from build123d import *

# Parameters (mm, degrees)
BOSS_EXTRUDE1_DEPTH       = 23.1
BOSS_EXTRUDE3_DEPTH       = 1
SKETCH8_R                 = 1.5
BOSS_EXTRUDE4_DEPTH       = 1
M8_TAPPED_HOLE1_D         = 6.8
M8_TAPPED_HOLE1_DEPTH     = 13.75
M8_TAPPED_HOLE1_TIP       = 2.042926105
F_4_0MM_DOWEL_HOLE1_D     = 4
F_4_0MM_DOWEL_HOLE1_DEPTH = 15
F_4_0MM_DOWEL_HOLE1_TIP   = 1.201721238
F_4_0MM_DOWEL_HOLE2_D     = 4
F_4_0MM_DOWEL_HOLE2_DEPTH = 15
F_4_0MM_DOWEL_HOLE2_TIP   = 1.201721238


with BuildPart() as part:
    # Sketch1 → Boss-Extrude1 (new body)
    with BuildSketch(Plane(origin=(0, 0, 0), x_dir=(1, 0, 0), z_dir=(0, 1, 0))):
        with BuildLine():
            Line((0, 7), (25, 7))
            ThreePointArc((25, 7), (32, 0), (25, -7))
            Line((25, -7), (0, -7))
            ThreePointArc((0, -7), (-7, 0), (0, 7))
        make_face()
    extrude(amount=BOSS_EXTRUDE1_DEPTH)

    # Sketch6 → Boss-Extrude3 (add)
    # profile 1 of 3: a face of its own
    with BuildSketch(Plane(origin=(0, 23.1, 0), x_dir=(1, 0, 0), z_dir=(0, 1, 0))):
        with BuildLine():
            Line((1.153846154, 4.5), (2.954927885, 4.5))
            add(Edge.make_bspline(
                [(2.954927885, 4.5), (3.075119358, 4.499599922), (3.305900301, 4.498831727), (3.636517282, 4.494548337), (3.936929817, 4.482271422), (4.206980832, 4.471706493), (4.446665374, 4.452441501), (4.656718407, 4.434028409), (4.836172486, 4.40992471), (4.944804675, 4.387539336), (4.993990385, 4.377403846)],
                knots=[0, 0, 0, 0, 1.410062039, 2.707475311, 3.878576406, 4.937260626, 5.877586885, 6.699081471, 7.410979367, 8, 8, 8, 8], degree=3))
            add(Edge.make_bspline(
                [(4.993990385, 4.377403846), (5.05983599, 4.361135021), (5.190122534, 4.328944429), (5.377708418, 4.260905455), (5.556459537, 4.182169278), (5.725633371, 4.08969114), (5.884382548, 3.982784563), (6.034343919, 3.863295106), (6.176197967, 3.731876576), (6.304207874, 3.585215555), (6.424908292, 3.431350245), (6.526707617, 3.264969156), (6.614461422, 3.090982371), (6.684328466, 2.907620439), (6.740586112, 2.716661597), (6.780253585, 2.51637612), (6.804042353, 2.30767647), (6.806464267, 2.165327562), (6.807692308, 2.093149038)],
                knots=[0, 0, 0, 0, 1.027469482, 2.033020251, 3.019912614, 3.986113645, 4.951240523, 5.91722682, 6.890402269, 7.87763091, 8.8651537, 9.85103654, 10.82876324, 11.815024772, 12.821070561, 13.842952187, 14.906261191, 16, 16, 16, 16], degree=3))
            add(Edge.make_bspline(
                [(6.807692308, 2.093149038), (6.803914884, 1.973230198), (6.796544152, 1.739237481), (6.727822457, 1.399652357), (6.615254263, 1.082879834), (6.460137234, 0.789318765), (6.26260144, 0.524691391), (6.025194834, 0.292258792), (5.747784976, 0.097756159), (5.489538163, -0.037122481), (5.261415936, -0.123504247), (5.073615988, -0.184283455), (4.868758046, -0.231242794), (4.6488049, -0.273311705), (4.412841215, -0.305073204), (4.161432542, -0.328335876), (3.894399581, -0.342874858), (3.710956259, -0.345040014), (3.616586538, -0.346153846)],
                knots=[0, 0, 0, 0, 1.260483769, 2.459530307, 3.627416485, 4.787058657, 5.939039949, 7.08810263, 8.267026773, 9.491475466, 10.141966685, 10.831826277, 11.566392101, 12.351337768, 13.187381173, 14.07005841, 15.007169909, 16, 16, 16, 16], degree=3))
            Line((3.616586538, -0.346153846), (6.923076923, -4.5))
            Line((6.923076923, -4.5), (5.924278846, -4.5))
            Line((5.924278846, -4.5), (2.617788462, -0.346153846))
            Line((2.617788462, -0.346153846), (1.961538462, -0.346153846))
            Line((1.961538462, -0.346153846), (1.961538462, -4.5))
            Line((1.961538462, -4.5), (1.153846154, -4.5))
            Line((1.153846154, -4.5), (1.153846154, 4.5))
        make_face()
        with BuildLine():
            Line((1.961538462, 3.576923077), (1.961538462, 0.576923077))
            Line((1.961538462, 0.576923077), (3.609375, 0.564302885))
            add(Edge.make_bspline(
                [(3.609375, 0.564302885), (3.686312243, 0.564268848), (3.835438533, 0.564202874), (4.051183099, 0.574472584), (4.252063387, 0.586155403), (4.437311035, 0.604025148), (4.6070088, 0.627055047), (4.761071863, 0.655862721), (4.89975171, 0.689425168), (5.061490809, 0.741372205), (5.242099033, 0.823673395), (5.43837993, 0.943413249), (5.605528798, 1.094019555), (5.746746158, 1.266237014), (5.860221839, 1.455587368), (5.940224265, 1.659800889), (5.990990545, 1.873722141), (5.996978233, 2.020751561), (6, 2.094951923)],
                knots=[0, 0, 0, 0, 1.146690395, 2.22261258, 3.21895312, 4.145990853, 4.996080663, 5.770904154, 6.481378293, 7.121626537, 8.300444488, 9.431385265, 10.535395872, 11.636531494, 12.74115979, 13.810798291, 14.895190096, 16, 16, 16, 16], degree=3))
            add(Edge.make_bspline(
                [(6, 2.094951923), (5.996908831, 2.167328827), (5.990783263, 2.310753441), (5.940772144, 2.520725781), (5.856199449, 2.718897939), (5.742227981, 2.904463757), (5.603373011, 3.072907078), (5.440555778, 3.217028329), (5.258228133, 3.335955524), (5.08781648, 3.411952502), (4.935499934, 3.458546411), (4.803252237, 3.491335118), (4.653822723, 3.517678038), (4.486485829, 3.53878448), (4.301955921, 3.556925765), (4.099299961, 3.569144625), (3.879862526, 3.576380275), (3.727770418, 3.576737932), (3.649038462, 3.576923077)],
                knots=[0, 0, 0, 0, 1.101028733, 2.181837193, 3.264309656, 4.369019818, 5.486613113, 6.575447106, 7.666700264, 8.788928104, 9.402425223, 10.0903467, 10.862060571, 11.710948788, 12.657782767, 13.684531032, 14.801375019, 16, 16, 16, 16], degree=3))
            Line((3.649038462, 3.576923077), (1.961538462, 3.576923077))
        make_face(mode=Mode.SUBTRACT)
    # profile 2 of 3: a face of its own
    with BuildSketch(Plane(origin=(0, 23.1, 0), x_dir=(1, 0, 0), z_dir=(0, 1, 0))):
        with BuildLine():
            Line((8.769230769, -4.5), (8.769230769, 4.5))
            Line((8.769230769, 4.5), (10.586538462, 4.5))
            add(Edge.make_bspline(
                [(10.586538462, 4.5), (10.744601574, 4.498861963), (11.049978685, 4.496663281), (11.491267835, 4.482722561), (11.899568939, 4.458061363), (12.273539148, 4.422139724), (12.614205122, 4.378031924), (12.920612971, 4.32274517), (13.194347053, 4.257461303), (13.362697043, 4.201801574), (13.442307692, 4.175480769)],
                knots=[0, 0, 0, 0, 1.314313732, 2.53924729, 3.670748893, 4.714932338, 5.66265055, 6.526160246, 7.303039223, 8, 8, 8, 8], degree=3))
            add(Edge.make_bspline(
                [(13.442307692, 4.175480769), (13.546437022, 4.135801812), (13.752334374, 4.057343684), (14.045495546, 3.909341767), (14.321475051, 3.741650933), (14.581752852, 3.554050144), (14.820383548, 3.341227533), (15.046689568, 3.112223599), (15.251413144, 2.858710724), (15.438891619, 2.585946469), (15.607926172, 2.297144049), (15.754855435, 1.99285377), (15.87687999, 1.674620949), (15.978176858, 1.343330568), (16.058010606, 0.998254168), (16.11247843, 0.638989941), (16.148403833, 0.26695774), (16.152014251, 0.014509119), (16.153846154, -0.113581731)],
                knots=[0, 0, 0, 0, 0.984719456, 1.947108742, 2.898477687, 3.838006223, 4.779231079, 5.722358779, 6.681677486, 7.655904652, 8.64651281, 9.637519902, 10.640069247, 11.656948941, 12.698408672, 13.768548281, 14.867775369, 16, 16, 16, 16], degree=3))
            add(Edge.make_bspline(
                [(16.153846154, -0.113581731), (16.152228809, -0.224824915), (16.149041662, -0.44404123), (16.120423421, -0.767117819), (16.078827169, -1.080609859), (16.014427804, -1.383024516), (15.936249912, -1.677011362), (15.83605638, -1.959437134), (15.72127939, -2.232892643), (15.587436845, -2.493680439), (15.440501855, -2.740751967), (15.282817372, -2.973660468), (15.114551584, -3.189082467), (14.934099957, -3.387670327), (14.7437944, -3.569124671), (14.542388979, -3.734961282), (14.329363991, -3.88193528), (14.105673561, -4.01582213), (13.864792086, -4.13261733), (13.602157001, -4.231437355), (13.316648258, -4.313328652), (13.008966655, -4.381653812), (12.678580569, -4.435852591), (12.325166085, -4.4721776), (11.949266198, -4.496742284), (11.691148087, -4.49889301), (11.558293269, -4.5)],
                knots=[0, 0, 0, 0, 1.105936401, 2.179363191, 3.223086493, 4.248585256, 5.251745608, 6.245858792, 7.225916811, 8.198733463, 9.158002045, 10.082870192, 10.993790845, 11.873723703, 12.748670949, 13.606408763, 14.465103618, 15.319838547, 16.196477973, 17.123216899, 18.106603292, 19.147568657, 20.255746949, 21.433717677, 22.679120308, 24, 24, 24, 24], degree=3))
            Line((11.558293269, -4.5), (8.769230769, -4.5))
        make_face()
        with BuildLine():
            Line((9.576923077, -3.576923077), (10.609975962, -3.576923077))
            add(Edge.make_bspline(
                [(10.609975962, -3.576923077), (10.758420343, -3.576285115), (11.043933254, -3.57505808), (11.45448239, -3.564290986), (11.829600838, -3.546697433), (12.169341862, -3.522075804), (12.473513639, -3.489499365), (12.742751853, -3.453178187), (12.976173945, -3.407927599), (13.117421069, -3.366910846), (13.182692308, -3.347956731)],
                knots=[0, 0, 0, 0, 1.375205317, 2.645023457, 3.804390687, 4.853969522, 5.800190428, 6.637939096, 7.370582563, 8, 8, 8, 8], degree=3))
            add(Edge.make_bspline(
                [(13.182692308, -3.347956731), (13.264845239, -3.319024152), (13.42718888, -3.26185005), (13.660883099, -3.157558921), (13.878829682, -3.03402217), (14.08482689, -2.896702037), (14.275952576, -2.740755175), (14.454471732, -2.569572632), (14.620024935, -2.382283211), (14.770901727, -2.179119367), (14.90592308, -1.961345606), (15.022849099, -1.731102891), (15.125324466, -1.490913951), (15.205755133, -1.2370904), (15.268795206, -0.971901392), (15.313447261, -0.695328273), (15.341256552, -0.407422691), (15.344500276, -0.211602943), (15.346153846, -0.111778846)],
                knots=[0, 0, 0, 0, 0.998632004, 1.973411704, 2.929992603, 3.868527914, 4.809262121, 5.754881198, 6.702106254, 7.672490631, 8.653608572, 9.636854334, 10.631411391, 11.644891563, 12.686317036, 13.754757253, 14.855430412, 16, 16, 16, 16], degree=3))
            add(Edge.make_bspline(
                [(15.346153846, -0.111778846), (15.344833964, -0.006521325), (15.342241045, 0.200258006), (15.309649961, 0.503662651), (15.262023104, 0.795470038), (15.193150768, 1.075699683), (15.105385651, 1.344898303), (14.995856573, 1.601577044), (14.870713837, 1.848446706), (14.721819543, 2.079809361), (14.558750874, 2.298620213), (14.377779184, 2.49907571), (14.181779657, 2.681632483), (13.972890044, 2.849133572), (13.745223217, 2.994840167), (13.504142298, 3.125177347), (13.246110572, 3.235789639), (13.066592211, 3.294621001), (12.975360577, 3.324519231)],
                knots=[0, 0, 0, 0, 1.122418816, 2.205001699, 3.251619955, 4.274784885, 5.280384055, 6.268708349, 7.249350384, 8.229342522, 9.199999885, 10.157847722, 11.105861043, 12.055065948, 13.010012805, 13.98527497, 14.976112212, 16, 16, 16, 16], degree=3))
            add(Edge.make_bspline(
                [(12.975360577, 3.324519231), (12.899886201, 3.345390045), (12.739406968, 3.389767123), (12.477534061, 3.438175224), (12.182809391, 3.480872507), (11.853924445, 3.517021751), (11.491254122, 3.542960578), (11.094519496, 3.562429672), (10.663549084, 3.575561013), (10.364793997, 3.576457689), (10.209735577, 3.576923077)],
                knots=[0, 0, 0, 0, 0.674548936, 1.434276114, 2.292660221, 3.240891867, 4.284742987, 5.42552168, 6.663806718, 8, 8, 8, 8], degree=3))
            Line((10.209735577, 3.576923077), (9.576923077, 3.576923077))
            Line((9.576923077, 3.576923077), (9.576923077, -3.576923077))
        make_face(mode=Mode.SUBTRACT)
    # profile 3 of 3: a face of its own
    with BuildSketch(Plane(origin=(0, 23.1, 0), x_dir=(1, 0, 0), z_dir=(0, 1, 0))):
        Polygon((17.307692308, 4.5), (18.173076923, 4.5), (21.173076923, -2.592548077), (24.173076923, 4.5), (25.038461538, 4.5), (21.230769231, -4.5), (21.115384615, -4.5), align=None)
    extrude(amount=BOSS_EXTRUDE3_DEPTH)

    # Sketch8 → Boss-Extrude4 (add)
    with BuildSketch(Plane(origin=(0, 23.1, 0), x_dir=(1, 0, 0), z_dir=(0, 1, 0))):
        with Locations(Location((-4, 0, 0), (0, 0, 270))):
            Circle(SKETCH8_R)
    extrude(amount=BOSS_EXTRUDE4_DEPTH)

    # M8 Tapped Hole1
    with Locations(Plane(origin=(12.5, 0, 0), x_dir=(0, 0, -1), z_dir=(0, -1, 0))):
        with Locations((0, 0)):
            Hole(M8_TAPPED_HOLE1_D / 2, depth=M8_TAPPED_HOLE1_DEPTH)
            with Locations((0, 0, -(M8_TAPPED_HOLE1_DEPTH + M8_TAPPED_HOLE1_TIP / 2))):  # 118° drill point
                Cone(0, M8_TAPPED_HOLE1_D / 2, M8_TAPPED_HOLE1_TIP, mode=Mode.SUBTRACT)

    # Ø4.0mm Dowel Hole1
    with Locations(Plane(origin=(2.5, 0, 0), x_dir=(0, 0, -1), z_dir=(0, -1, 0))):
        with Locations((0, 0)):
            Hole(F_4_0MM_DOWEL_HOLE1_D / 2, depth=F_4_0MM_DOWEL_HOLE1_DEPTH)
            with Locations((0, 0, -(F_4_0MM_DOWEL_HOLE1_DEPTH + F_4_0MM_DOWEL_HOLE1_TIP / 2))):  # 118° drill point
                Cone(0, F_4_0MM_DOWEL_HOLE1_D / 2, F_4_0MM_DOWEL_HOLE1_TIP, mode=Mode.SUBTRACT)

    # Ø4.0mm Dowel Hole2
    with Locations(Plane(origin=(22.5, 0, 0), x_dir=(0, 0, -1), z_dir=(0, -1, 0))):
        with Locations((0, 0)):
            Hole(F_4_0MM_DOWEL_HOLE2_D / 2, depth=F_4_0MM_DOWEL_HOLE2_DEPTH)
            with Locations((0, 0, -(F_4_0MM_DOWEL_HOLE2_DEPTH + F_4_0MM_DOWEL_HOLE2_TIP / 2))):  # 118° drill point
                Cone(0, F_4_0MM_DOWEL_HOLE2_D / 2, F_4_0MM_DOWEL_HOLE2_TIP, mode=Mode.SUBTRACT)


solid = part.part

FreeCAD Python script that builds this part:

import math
import FreeCAD as App
import Part
import Sketcher

V = App.Vector

doc = App.newDocument("Part")
params = doc.addObject("Spreadsheet::Sheet", "Params")
for row, (alias, value) in enumerate([
    ("sketch1_radius", "7 mm"),
    ("sketch1_width", "25 mm"),
    ("pad1_length", "23.1 mm"),
    ("sketch2_height", "3 mm"),
    ("pad2_length", "1 mm"),
    ("sketch3_diameter", "3 mm"),
    ("pad3_length", "1 mm"),
    ("sketch4_diameter", "6.8 mm"),
    ("hole_diameter", "6.8 mm"),
    ("hole_depth", "13.75 mm"),
    ("sketch5_diameter", "4 mm"),
    ("hole2_diameter", "4 mm"),
    ("hole2_depth", "15 mm"),
    ("sketch6_diameter", "4 mm"),
    ("hole3_diameter", "4 mm"),
    ("hole3_depth", "15 mm"),
], start=1):
    params.set(f"A{row}", alias)
    params.set(f"B{row}", "=" + value)
    params.setAlias(f"B{row}", alias)

body = doc.addObject("PartDesign::Body", "Body")

# Sketch on XZ plane
sketch1 = body.newObject("Sketcher::SketchObject", "Sketch")
sketch1.AttachmentSupport = (doc.getObject("XZ_Plane"), [""])
sketch1.MapMode = "FlatFace"
sketch1.addGeometry(Part.LineSegment(V(25, -7, 0), V(0, -7, 0)), False)
sketch1.addGeometry(Part.ArcOfCircle(Part.Circle(V(0, 0, 0), V(0, 0, 1), 7), math.radians(90), math.radians(270)), False)
sketch1.addGeometry(Part.LineSegment(V(0, 7, 0), V(25, 7, 0)), False)
sketch1.addGeometry(Part.ArcOfCircle(Part.Circle(V(25, 0, 0), V(0, 0, 1), 7), math.radians(-90), math.radians(90)), False)
sketch1.addConstraint(Sketcher.Constraint("Tangent", 0, 2, 1, 2))
sketch1.addConstraint(Sketcher.Constraint("Tangent", 1, 1, 2, 1))
sketch1.addConstraint(Sketcher.Constraint("Tangent", 2, 2, 3, 2))
sketch1.addConstraint(Sketcher.Constraint("Tangent", 3, 1, 0, 1))
sketch1.addConstraint(Sketcher.Constraint("Horizontal", 0))
sketch1.addConstraint(Sketcher.Constraint("Horizontal", 2))
sketch1.addConstraint(Sketcher.Constraint("Coincident", 1, 3, -1, 1))
sketch1.addConstraint(Sketcher.Constraint("Radius", 1, 7.0))
sketch1.addConstraint(Sketcher.Constraint("DistanceX", 0, 2, 0, 1, 25.0))
sketch1.setExpression("Constraints[7]", "Params.sketch1_radius")
sketch1.setExpression("Constraints[8]", "Params.sketch1_width")
pad1 = body.newObject("PartDesign::Pad", "Pad")
pad1.Profile = sketch1
pad1.setExpression("Length", "Params.pad1_length")
pad1.Reversed = True

# Sketch on XZ plane
sketch2 = body.newObject("Sketcher::SketchObject", "Sketch001")
sketch2.AttachmentSupport = (doc.getObject("XZ_Plane"), [""])
sketch2.MapMode = "FlatFace"
sketch2.AttachmentOffset = App.Placement(V(0, 0, -23.1), App.Rotation())
sketch2.addGeometry(Part.LineSegment(V(2.954928, -4.5, 0), V(1.153846, -4.5, 0)), False)
sketch2.addGeometry(Part.LineSegment(V(1.153846, -4.5, 0), V(1.153846, 4.5, 0)), False)
sketch2.addGeometry(Part.LineSegment(V(1.153846, 4.5, 0), V(1.961538, 4.5, 0)), False)
sketch2.addGeometry(Part.LineSegment(V(1.961538, 4.5, 0), V(1.961538, 0.346154, 0)), False)
sketch2.addGeometry(Part.LineSegment(V(1.961538, 0.346154, 0), V(2.617788, 0.346154, 0)), False)
sketch2.addGeometry(Part.LineSegment(V(2.617788, 0.346154, 0), V(5.924279, 4.5, 0)), False)
sketch2.addGeometry(Part.LineSegment(V(5.924279, 4.5, 0), V(6.923077, 4.5, 0)), False)
sketch2.addGeometry(Part.LineSegment(V(6.923077, 4.5, 0), V(3.616587, 0.346154, 0)), False)
sketch2.addGeometry(Part.BSplineCurve([V(6.807692, -2.093149, 0), V(6.803915, -1.97323, 0), V(6.796544, -1.739237, 0), V(6.727822, -1.399652, 0), V(6.615254, -1.08288, 0), V(6.460137, -0.789319, 0), V(6.262601, -0.524691, 0), V(6.025195, -0.292259, 0), V(5.747785, -0.097756, 0), V(5.489538, 0.037122, 0), V(5.261416, 0.123504, 0), V(5.073616, 0.184283, 0), V(4.868758, 0.231243, 0), V(4.648805, 0.273312, 0), V(4.412841, 0.305073, 0), V(4.161433, 0.328336, 0), V(3.8944, 0.342875, 0), V(3.710956, 0.34504, 0), V(3.616587, 0.346154, 0)], [4, 1, 1, 1, 1, 1, 1, 1, 1, 1, 1, 1, 1, 1, 1, 1, 4], [0, 1.260483769, 2.459530307, 3.627416485, 4.787058657, 5.939039949, 7.08810263, 8.267026773, 9.491475466, 10.141966685, 10.831826277, 11.566392101, 12.351337768, 13.187381173, 14.07005841, 15.007169909, 16], False, 3, [1, 1, 1, 1, 1, 1, 1, 1, 1, 1, 1, 1, 1, 1, 1, 1, 1, 1, 1], False), False)
sketch2.addGeometry(Part.BSplineCurve([V(4.99399, -4.377404, 0), V(5.059836, -4.361135, 0), V(5.190123, -4.328944, 0), V(5.377708, -4.260905, 0), V(5.55646, -4.182169, 0), V(5.725633, -4.089691, 0), V(5.884383, -3.982785, 0), V(6.034344, -3.863295, 0), V(6.176198, -3.731877, 0), V(6.304208, -3.585216, 0), V(6.424908, -3.43135, 0), V(6.526708, -3.264969, 0), V(6.614461, -3.090982, 0), V(6.684328, -2.90762, 0), V(6.740586, -2.716662, 0), V(6.780254, -2.516376, 0), V(6.804042, -2.307676, 0), V(6.806464, -2.165328, 0), V(6.807692, -2.093149, 0)], [4, 1, 1, 1, 1, 1, 1, 1, 1, 1, 1, 1, 1, 1, 1, 1, 4], [0, 1.027469482, 2.033020251, 3.019912614, 3.986113645, 4.951240523, 5.91722682, 6.890402269, 7.87763091, 8.8651537, 9.85103654, 10.82876324, 11.815024772, 12.821070561, 13.842952187, 14.906261191, 16], False, 3, [1, 1, 1, 1, 1, 1, 1, 1, 1, 1, 1, 1, 1, 1, 1, 1, 1, 1, 1], False), False)
sketch2.addGeometry(Part.BSplineCurve([V(2.954928, -4.5, 0), V(3.075119, -4.4996, 0), V(3.3059, -4.498832, 0), V(3.636517, -4.494548, 0), V(3.93693, -4.482271, 0), V(4.206981, -4.471706, 0), V(4.446665, -4.452442, 0), V(4.656718, -4.434028, 0), V(4.836172, -4.409925, 0), V(4.944805, -4.387539, 0), V(4.99399, -4.377404, 0)], [4, 1, 1, 1, 1, 1, 1, 1, 4], [0, 1.410062039, 2.707475311, 3.878576406, 4.937260626, 5.877586885, 6.699081471, 7.410979367, 8], False, 3, [1, 1, 1, 1, 1, 1, 1, 1, 1, 1, 1], False), False)
sketch2.addGeometry(Part.LineSegment(V(1.961538, -3.576923, 0), V(3.649038, -3.576923, 0)), False)
sketch2.addGeometry(Part.BSplineCurve([V(6, -2.094952, 0), V(5.996909, -2.167329, 0), V(5.990783, -2.310753, 0), V(5.940772, -2.520726, 0), V(5.856199, -2.718898, 0), V(5.742228, -2.904464, 0), V(5.603373, -3.072907, 0), V(5.440556, -3.217028, 0), V(5.258228, -3.335956, 0), V(5.087816, -3.411953, 0), V(4.9355, -3.458546, 0), V(4.803252, -3.491335, 0), V(4.653823, -3.517678, 0), V(4.486486, -3.538784, 0), V(4.301956, -3.556926, 0), V(4.0993, -3.569145, 0), V(3.879863, -3.57638, 0), V(3.72777, -3.576738, 0), V(3.649038, -3.576923, 0)], [4, 1, 1, 1, 1, 1, 1, 1, 1, 1, 1, 1, 1, 1, 1, 1, 4], [0, 1.101028733, 2.181837193, 3.264309656, 4.369019818, 5.486613113, 6.575447106, 7.666700264, 8.788928104, 9.402425223, 10.0903467, 10.862060571, 11.710948788, 12.657782767, 13.684531032, 14.801375019, 16], False, 3, [1, 1, 1, 1, 1, 1, 1, 1, 1, 1, 1, 1, 1, 1, 1, 1, 1, 1, 1], False), False)
sketch2.addGeometry(Part.BSplineCurve([V(3.609375, -0.564303, 0), V(3.686312, -0.564269, 0), V(3.835439, -0.564203, 0), V(4.051183, -0.574473, 0), V(4.252063, -0.586155, 0), V(4.437311, -0.604025, 0), V(4.607009, -0.627055, 0), V(4.761072, -0.655863, 0), V(4.899752, -0.689425, 0), V(5.061491, -0.741372, 0), V(5.242099, -0.823673, 0), V(5.43838, -0.943413, 0), V(5.605529, -1.09402, 0), V(5.746746, -1.266237, 0), V(5.860222, -1.455587, 0), V(5.940224, -1.659801, 0), V(5.990991, -1.873722, 0), V(5.996978, -2.020752, 0), V(6, -2.094952, 0)], [4, 1, 1, 1, 1, 1, 1, 1, 1, 1, 1, 1, 1, 1, 1, 1, 4], [0, 1.146690395, 2.22261258, 3.21895312, 4.145990853, 4.996080663, 5.770904154, 6.481378293, 7.121626537, 8.300444488, 9.431385265, 10.535395872, 11.636531494, 12.74115979, 13.810798291, 14.895190096, 16], False, 3, [1, 1, 1, 1, 1, 1, 1, 1, 1, 1, 1, 1, 1, 1, 1, 1, 1, 1, 1], False), False)
sketch2.addGeometry(Part.LineSegment(V(3.609375, -0.564303, 0), V(1.961538, -0.576923, 0)), False)
sketch2.addGeometry(Part.LineSegment(V(1.961538, -0.576923, 0), V(1.961538, -3.576923, 0)), False)
sketch2.addGeometry(Part.LineSegment(V(8.769231, -4.5, 0), V(8.769231, 4.5, 0)), False)
sketch2.addGeometry(Part.LineSegment(V(8.769231, 4.5, 0), V(11.558293, 4.5, 0)), False)
sketch2.addGeometry(Part.BSplineCurve([V(16.153846, 0.113582, 0), V(16.152229, 0.224825, 0), V(16.149042, 0.444041, 0), V(16.120423, 0.767118, 0), V(16.078827, 1.08061, 0), V(16.014428, 1.383025, 0), V(15.93625, 1.677011, 0), V(15.836056, 1.959437, 0), V(15.721279, 2.232893, 0), V(15.587437, 2.49368, 0), V(15.440502, 2.740752, 0), V(15.282817, 2.97366, 0), V(15.114552, 3.189082, 0), V(14.9341, 3.38767, 0), V(14.743794, 3.569125, 0), V(14.542389, 3.734961, 0), V(14.329364, 3.881935, 0), V(14.105674, 4.015822, 0), V(13.864792, 4.132617, 0), V(13.602157, 4.231437, 0), V(13.316648, 4.313329, 0), V(13.008967, 4.381654, 0), V(12.678581, 4.435853, 0), V(12.325166, 4.472178, 0), V(11.949266, 4.496742, 0), V(11.691148, 4.498893, 0), V(11.558293, 4.5, 0)], [4, 1, 1, 1, 1, 1, 1, 1, 1, 1, 1, 1, 1, 1, 1, 1, 1, 1, 1, 1, 1, 1, 1, 1, 4], [0, 1.105936401, 2.179363191, 3.223086493, 4.248585256, 5.251745608, 6.245858792, 7.225916811, 8.198733463, 9.158002045, 10.082870192, 10.993790845, 11.873723703, 12.748670949, 13.606408763, 14.465103618, 15.319838547, 16.196477973, 17.123216899, 18.106603292, 19.147568657, 20.255746949, 21.433717677, 22.679120308, 24], False, 3, [1, 1, 1, 1, 1, 1, 1, 1, 1, 1, 1, 1, 1, 1, 1, 1, 1, 1, 1, 1, 1, 1, 1, 1, 1, 1, 1], False), False)
sketch2.addGeometry(Part.BSplineCurve([V(13.442308, -4.175481, 0), V(13.546437, -4.135802, 0), V(13.752334, -4.057344, 0), V(14.045496, -3.909342, 0), V(14.321475, -3.741651, 0), V(14.581753, -3.55405, 0), V(14.820384, -3.341228, 0), V(15.04669, -3.112224, 0), V(15.251413, -2.858711, 0), V(15.438892, -2.585946, 0), V(15.607926, -2.297144, 0), V(15.754855, -1.992854, 0), V(15.87688, -1.674621, 0), V(15.978177, -1.343331, 0), V(16.058011, -0.998254, 0), V(16.112478, -0.63899, 0), V(16.148404, -0.266958, 0), V(16.152014, -0.014509, 0), V(16.153846, 0.113582, 0)], [4, 1, 1, 1, 1, 1, 1, 1, 1, 1, 1, 1, 1, 1, 1, 1, 4], [0, 0.984719456, 1.947108742, 2.898477687, 3.838006223, 4.779231079, 5.722358779, 6.681677486, 7.655904652, 8.64651281, 9.637519902, 10.640069247, 11.656948941, 12.698408672, 13.768548281, 14.867775369, 16], False, 3, [1, 1, 1, 1, 1, 1, 1, 1, 1, 1, 1, 1, 1, 1, 1, 1, 1, 1, 1], False), False)
sketch2.addGeometry(Part.BSplineCurve([V(10.586538, -4.5, 0), V(10.744602, -4.498862, 0), V(11.049979, -4.496663, 0), V(11.491268, -4.482723, 0), V(11.899569, -4.458061, 0), V(12.273539, -4.42214, 0), V(12.614205, -4.378032, 0), V(12.920613, -4.322745, 0), V(13.194347, -4.257461, 0), V(13.362697, -4.201802, 0), V(13.442308, -4.175481, 0)], [4, 1, 1, 1, 1, 1, 1, 1, 4], [0, 1.314313732, 2.53924729, 3.670748893, 4.714932338, 5.66265055, 6.526160246, 7.303039223, 8], False, 3, [1, 1, 1, 1, 1, 1, 1, 1, 1, 1, 1], False), False)
sketch2.addGeometry(Part.LineSegment(V(10.586538, -4.5, 0), V(8.769231, -4.5, 0)), False)
sketch2.addGeometry(Part.LineSegment(V(9.576923, 3.576923, 0), V(9.576923, -3.576923, 0)), False)
sketch2.addGeometry(Part.LineSegment(V(9.576923, -3.576923, 0), V(10.209736, -3.576923, 0)), False)
sketch2.addGeometry(Part.BSplineCurve([V(12.975361, -3.324519, 0), V(12.899886, -3.34539, 0), V(12.739407, -3.389767, 0), V(12.477534, -3.438175, 0), V(12.182809, -3.480873, 0), V(11.853924, -3.517022, 0), V(11.491254, -3.542961, 0), V(11.094519, -3.56243, 0), V(10.663549, -3.575561, 0), V(10.364794, -3.576458, 0), V(10.209736, -3.576923, 0)], [4, 1, 1, 1, 1, 1, 1, 1, 4], [0, 0.674548936, 1.434276114, 2.292660221, 3.240891867, 4.284742987, 5.42552168, 6.663806718, 8], False, 3, [1, 1, 1, 1, 1, 1, 1, 1, 1, 1, 1], False), False)
sketch2.addGeometry(Part.BSplineCurve([V(15.346154, 0.111779, 0), V(15.344834, 0.006521, 0), V(15.342241, -0.200258, 0), V(15.30965, -0.503663, 0), V(15.262023, -0.79547, 0), V(15.193151, -1.0757, 0), V(15.105386, -1.344898, 0), V(14.995857, -1.601577, 0), V(14.870714, -1.848447, 0), V(14.72182, -2.079809, 0), V(14.558751, -2.29862, 0), V(14.377779, -2.499076, 0), V(14.18178, -2.681632, 0), V(13.97289, -2.849134, 0), V(13.745223, -2.99484, 0), V(13.504142, -3.125177, 0), V(13.246111, -3.23579, 0), V(13.066592, -3.294621, 0), V(12.975361, -3.324519, 0)], [4, 1, 1, 1, 1, 1, 1, 1, 1, 1, 1, 1, 1, 1, 1, 1, 4], [0, 1.122418816, 2.205001699, 3.251619955, 4.274784885, 5.280384055, 6.268708349, 7.249350384, 8.229342522, 9.199999885, 10.157847722, 11.105861043, 12.055065948, 13.010012805, 13.98527497, 14.976112212, 16], False, 3, [1, 1, 1, 1, 1, 1, 1, 1, 1, 1, 1, 1, 1, 1, 1, 1, 1, 1, 1], False), False)
sketch2.addGeometry(Part.BSplineCurve([V(13.182692, 3.347957, 0), V(13.264845, 3.319024, 0), V(13.427189, 3.26185, 0), V(13.660883, 3.157559, 0), V(13.87883, 3.034022, 0), V(14.084827, 2.896702, 0), V(14.275953, 2.740755, 0), V(14.454472, 2.569573, 0), V(14.620025, 2.382283, 0), V(14.770902, 2.179119, 0), V(14.905923, 1.961346, 0), V(15.022849, 1.731103, 0), V(15.125324, 1.490914, 0), V(15.205755, 1.23709, 0), V(15.268795, 0.971901, 0), V(15.313447, 0.695328, 0), V(15.341257, 0.407423, 0), V(15.3445, 0.211603, 0), V(15.346154, 0.111779, 0)], [4, 1, 1, 1, 1, 1, 1, 1, 1, 1, 1, 1, 1, 1, 1, 1, 4], [0, 0.998632004, 1.973411704, 2.929992603, 3.868527914, 4.809262121, 5.754881198, 6.702106254, 7.672490631, 8.653608572, 9.636854334, 10.631411391, 11.644891563, 12.686317036, 13.754757253, 14.855430412, 16], False, 3, [1, 1, 1, 1, 1, 1, 1, 1, 1, 1, 1, 1, 1, 1, 1, 1, 1, 1, 1], False), False)
sketch2.addGeometry(Part.BSplineCurve([V(10.609976, 3.576923, 0), V(10.75842, 3.576285, 0), V(11.043933, 3.575058, 0), V(11.454482, 3.564291, 0), V(11.829601, 3.546697, 0), V(12.169342, 3.522076, 0), V(12.473514, 3.489499, 0), V(12.742752, 3.453178, 0), V(12.976174, 3.407928, 0), V(13.117421, 3.366911, 0), V(13.182692, 3.347957, 0)], [4, 1, 1, 1, 1, 1, 1, 1, 4], [0, 1.375205317, 2.645023457, 3.804390687, 4.853969522, 5.800190428, 6.637939096, 7.370582563, 8], False, 3, [1, 1, 1, 1, 1, 1, 1, 1, 1, 1, 1], False), False)
sketch2.addGeometry(Part.LineSegment(V(10.609976, 3.576923, 0), V(9.576923, 3.576923, 0)), False)
sketch2.addGeometry(Part.LineSegment(V(18.173077, -4.5, 0), V(17.307692, -4.5, 0)), False)
sketch2.addGeometry(Part.LineSegment(V(17.307692, -4.5, 0), V(21.115385, 4.5, 0)), False)
sketch2.addGeometry(Part.LineSegment(V(21.115385, 4.5, 0), V(21.230769, 4.5, 0)), False)
sketch2.addGeometry(Part.LineSegment(V(21.230769, 4.5, 0), V(25.038462, -4.5, 0)), False)
sketch2.addGeometry(Part.LineSegment(V(25.038462, -4.5, 0), V(24.173077, -4.5, 0)), False)
sketch2.addGeometry(Part.LineSegment(V(24.173077, -4.5, 0), V(21.173077, 2.592548, 0)), False)
sketch2.addGeometry(Part.LineSegment(V(21.173077, 2.592548, 0), V(18.173077, -4.5, 0)), False)
sketch2.addConstraint(Sketcher.Constraint("Block", 8))
sketch2.addConstraint(Sketcher.Constraint("Block", 9))
sketch2.addConstraint(Sketcher.Constraint("Block", 10))
sketch2.addConstraint(Sketcher.Constraint("Block", 12))
sketch2.addConstraint(Sketcher.Constraint("Block", 13))
sketch2.addConstraint(Sketcher.Constraint("Block", 18))
sketch2.addConstraint(Sketcher.Constraint("Block", 19))
sketch2.addConstraint(Sketcher.Constraint("Block", 20))
sketch2.addConstraint(Sketcher.Constraint("Block", 24))
sketch2.addConstraint(Sketcher.Constraint("Block", 25))
sketch2.addConstraint(Sketcher.Constraint("Block", 26))
sketch2.addConstraint(Sketcher.Constraint("Block", 27))
sketch2.addConstraint(Sketcher.Constraint("Coincident", 0, 2, 1, 1))
sketch2.addConstraint(Sketcher.Constraint("Coincident", 1, 2, 2, 1))
sketch2.addConstraint(Sketcher.Constraint("Coincident", 2, 2, 3, 1))
sketch2.addConstraint(Sketcher.Constraint("Coincident", 3, 2, 4, 1))
sketch2.addConstraint(Sketcher.Constraint("Coincident", 4, 2, 5, 1))
sketch2.addConstraint(Sketcher.Constraint("Coincident", 5, 2, 6, 1))
sketch2.addConstraint(Sketcher.Constraint("Coincident", 6, 2, 7, 1))
sketch2.addConstraint(Sketcher.Constraint("Coincident", 7, 2, 8, 2))
sketch2.addConstraint(Sketcher.Constraint("Coincident", 10, 1, 0, 1))
sketch2.addConstraint(Sketcher.Constraint("Coincident", 11, 2, 12, 2))
sketch2.addConstraint(Sketcher.Constraint("Coincident", 13, 1, 14, 1))
sketch2.addConstraint(Sketcher.Constraint("Coincident", 14, 2, 15, 1))
sketch2.addConstraint(Sketcher.Constraint("Coincident", 15, 2, 11, 1))
sketch2.addConstraint(Sketcher.Constraint("Coincident", 16, 2, 17, 1))
sketch2.addConstraint(Sketcher.Constraint("Coincident", 17, 2, 18, 2))
sketch2.addConstraint(Sketcher.Constraint("Coincident", 20, 1, 21, 1))
sketch2.addConstraint(Sketcher.Constraint("Coincident", 21, 2, 16, 1))
sketch2.addConstraint(Sketcher.Constraint("Coincident", 22, 2, 23, 1))
sketch2.addConstraint(Sketcher.Constraint("Coincident", 23, 2, 24, 2))
sketch2.addConstraint(Sketcher.Constraint("Coincident", 27, 1, 28, 1))
sketch2.addConstraint(Sketcher.Constraint("Coincident", 28, 2, 22, 1))
sketch2.addConstraint(Sketcher.Constraint("Coincident", 29, 2, 30, 1))
sketch2.addConstraint(Sketcher.Constraint("Coincident", 30, 2, 31, 1))
sketch2.addConstraint(Sketcher.Constraint("Coincident", 31, 2, 32, 1))
sketch2.addConstraint(Sketcher.Constraint("Coincident", 32, 2, 33, 1))
sketch2.addConstraint(Sketcher.Constraint("Coincident", 33, 2, 34, 1))
sketch2.addConstraint(Sketcher.Constraint("Coincident", 34, 2, 35, 1))
sketch2.addConstraint(Sketcher.Constraint("Coincident", 35, 2, 29, 1))
sketch2.addConstraint(Sketcher.Constraint("Horizontal", 0))
sketch2.addConstraint(Sketcher.Constraint("Vertical", 1))
sketch2.addConstraint(Sketcher.Constraint("Horizontal", 2))
sketch2.addConstraint(Sketcher.Constraint("Vertical", 3))
sketch2.addConstraint(Sketcher.Constraint("Horizontal", 4))
sketch2.addConstraint(Sketcher.Constraint("Horizontal", 6))
sketch2.addConstraint(Sketcher.Constraint("Horizontal", 11))
sketch2.addConstraint(Sketcher.Constraint("Vertical", 15))
sketch2.addConstraint(Sketcher.Constraint("Vertical", 16))
sketch2.addConstraint(Sketcher.Constraint("Horizontal", 17))
sketch2.addConstraint(Sketcher.Constraint("Horizontal", 21))
sketch2.addConstraint(Sketcher.Constraint("Vertical", 22))
sketch2.addConstraint(Sketcher.Constraint("Horizontal", 23))
sketch2.addConstraint(Sketcher.Constraint("Horizontal", 28))
sketch2.addConstraint(Sketcher.Constraint("Horizontal", 29))
sketch2.addConstraint(Sketcher.Constraint("Horizontal", 31))
sketch2.addConstraint(Sketcher.Constraint("Horizontal", 33))
sketch2.addConstraint(Sketcher.Constraint("Parallel", 5, 7))
sketch2.addConstraint(Sketcher.Constraint("Horizontal", 2, 2, 5, 2))
sketch2.addConstraint(Sketcher.Constraint("Horizontal", 4, 2, 7, 2))
sketch2.addConstraint(Sketcher.Constraint("Horizontal", 6, 2, 16, 2))
sketch2.addConstraint(Sketcher.Constraint("Horizontal", 21, 2, 29, 2))
sketch2.addConstraint(Sketcher.Constraint("Horizontal", 17, 2, 30, 2))
sketch2.addConstraint(Sketcher.Constraint("Horizontal", 29, 2, 32, 2))
sketch2.addConstraint(Sketcher.Constraint("Vertical", 3, 2, 14, 2))
sketch2.addConstraint(Sketcher.Constraint("Equal", 29, 33))
sketch2.addConstraint(Sketcher.Constraint("Equal", 30, 32))
sketch2.addConstraint(Sketcher.Constraint("Equal", 34, 35))
sketch2.addConstraint(Sketcher.Constraint("DistanceY", 15, 2, 15, 1, 3.0))
sketch2.addConstraint(Sketcher.Constraint("DistanceX", 34, 2, 33, 2, 3.0))
sketch2.addConstraint(Sketcher.Constraint("DistanceX", 6, 1, 6, 2, 0.998798))
sketch2.addConstraint(Sketcher.Constraint("DistanceX", 11, 1, 11, 2, 1.6875))
sketch2.addConstraint(Sketcher.Constraint("DistanceX", 0, 2, 0, 1, 1.801082))
sketch2.addConstraint(Sketcher.Constraint("DistanceX", 17, 2, 29, 2, 5.749399))
sketch2.addConstraint(Sketcher.Constraint("DistanceX", 17, 1, 17, 2, 2.789062))
sketch2.addConstraint(Sketcher.Constraint("DistanceX", 23, 1, 23, 2, 0.632812))
sketch2.addConstraint(Sketcher.Constraint("DistanceX", 29, 2, 29, 1, 0.865385))
sketch2.addConstraint(Sketcher.Constraint("DistanceX", 31, 1, 31, 2, 0.115385))
sketch2.addConstraint(Sketcher.Constraint("DistanceX", -1, 1, 5, 2, 5.924279))
sketch2.addConstraint(Sketcher.Constraint("DistanceY", -1, 1, 34, 2, 2.592548))
sketch2.setExpression("Constraints[68]", "Params.sketch2_height")
pad2 = body.newObject("PartDesign::Pad", "Pad001")
pad2.Profile = sketch2
pad2.setExpression("Length", "Params.pad2_length")
pad2.Reversed = True

# Sketch on XZ plane
sketch3 = body.newObject("Sketcher::SketchObject", "Sketch002")
sketch3.AttachmentSupport = (doc.getObject("XZ_Plane"), [""])
sketch3.MapMode = "FlatFace"
sketch3.AttachmentOffset = App.Placement(V(0, 0, -23.1), App.Rotation())
sketch3.addGeometry(Part.Circle(V(-4, 0, 0), V(0, 0, 1), 1.5), False)
sketch3.addConstraint(Sketcher.Constraint("PointOnObject", 0, 3, -1))
sketch3.addConstraint(Sketcher.Constraint("Diameter", 0, 3.0))
sketch3.addConstraint(Sketcher.Constraint("DistanceX", 0, 3, -1, 1, 4.0))
sketch3.setExpression("Constraints[1]", "Params.sketch3_diameter")
pad3 = body.newObject("PartDesign::Pad", "Pad002")
pad3.Profile = sketch3
pad3.setExpression("Length", "Params.pad3_length")
pad3.Reversed = True

# Sketch on XZ plane
sketch4 = body.newObject("Sketcher::SketchObject", "Sketch003")
sketch4.AttachmentSupport = (doc.getObject("XZ_Plane"), [""])
sketch4.MapMode = "FlatFace"
sketch4.addGeometry(Part.Circle(V(12.5, 0, 0), V(0, 0, 1), 3.4), False)
sketch4.addConstraint(Sketcher.Constraint("PointOnObject", 0, 3, -1))
sketch4.addConstraint(Sketcher.Constraint("Diameter", 0, 6.8))
sketch4.addConstraint(Sketcher.Constraint("DistanceX", -1, 1, 0, 3, 12.5))
sketch4.setExpression("Constraints[1]", "Params.sketch4_diameter")
doc.recompute()
hole = body.newObject("PartDesign::Hole", "Hole")
hole.Profile = sketch4
hole.ThreadType = "None"
hole.setExpression("Diameter", "Params.hole_diameter")
hole.DepthType = "Dimension"
hole.setExpression("Depth", "Params.hole_depth")
hole.DrillPoint = "Angled"
hole.DrillPointAngle = 118

# Sketch on XZ plane
sketch5 = body.newObject("Sketcher::SketchObject", "Sketch004")
sketch5.AttachmentSupport = (doc.getObject("XZ_Plane"), [""])
sketch5.MapMode = "FlatFace"
sketch5.addGeometry(Part.Circle(V(2.5, 0, 0), V(0, 0, 1), 2), False)
sketch5.addConstraint(Sketcher.Constraint("PointOnObject", 0, 3, -1))
sketch5.addConstraint(Sketcher.Constraint("Diameter", 0, 4.0))
sketch5.addConstraint(Sketcher.Constraint("DistanceX", -1, 1, 0, 3, 2.5))
sketch5.setExpression("Constraints[1]", "Params.sketch5_diameter")
doc.recompute()
hole2 = body.newObject("PartDesign::Hole", "Hole001")
hole2.Profile = sketch5
hole2.ThreadType = "None"
hole2.setExpression("Diameter", "Params.hole2_diameter")
hole2.DepthType = "Dimension"
hole2.setExpression("Depth", "Params.hole2_depth")
hole2.DrillPoint = "Angled"
hole2.DrillPointAngle = 118

# Sketch on XZ plane
sketch6 = body.newObject("Sketcher::SketchObject", "Sketch005")
sketch6.AttachmentSupport = (doc.getObject("XZ_Plane"), [""])
sketch6.MapMode = "FlatFace"
sketch6.addGeometry(Part.Circle(V(22.5, 0, 0), V(0, 0, 1), 2), False)
sketch6.addConstraint(Sketcher.Constraint("PointOnObject", 0, 3, -1))
sketch6.addConstraint(Sketcher.Constraint("Diameter", 0, 4.0))
sketch6.addConstraint(Sketcher.Constraint("DistanceX", -1, 1, 0, 3, 22.5))
sketch6.setExpression("Constraints[1]", "Params.sketch6_diameter")
doc.recompute()
hole3 = body.newObject("PartDesign::Hole", "Hole002")
hole3.Profile = sketch6
hole3.ThreadType = "None"
hole3.setExpression("Diameter", "Params.hole3_diameter")
hole3.DepthType = "Dimension"
hole3.setExpression("Depth", "Params.hole3_depth")
hole3.DrillPoint = "Angled"
hole3.DrillPointAngle = 118

doc.recompute()
